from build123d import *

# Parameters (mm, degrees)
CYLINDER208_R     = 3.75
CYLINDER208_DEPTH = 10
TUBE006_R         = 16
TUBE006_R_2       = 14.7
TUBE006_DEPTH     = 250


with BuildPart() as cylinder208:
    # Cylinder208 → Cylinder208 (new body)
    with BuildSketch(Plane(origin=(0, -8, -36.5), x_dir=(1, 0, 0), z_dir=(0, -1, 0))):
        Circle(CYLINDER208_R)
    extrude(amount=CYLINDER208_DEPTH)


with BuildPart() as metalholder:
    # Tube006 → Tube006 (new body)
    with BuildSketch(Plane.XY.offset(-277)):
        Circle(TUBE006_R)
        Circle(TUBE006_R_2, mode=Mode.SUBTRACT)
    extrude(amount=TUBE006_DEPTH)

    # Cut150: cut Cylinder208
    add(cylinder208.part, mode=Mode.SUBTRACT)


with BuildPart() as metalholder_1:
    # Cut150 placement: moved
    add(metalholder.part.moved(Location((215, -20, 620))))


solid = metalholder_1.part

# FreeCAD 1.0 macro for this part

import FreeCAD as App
import Part
import Sketcher
Q = App.Units.Quantity

doc = App.newDocument("Part")
body = doc.addObject("PartDesign::Body", "Body")

# Sketch on XZ plane
sketch1 = doc.addObject("Sketcher::SketchObject", "Sketch")
body.addObject(sketch1)
sketch1.AttachmentSupport = (doc.XZ_Plane, [""])
sketch1.MapMode = "FlatFace"
sketch1.AttachmentOffset = App.Placement(App.Vector(0, 0, 8), App.Rotation())
sketch1.addGeometry(Part.Circle(App.Vector(0, -36.5, 0), App.Vector(0, 0, 1), 3.8), False)
sketch1.addConstraint([
    Sketcher.Constraint("PointOnObject", 0, 3, -2),
    Sketcher.Constraint("Diameter", 0, Q("7.5 mm")),
    Sketcher.Constraint("DistanceY", 0, 3, -1, 1, Q("36.5 mm")),
])
pad1 = doc.addObject("PartDesign::Pad", "Pad")
body.addObject(pad1)
pad1.Profile = sketch1
pad1.Length = 10
body2 = doc.addObject("PartDesign::Body", "Body001")

# Sketch on XY plane
sketch2 = doc.addObject("Sketcher::SketchObject", "Sketch001")
body2.addObject(sketch2)
sketch2.AttachmentSupport = (doc.getObject("XY_Plane001"), [""])
sketch2.MapMode = "FlatFace"
sketch2.AttachmentOffset = App.Placement(App.Vector(0, 0, -277), App.Rotation())
sketch2.addGeometry([
    Part.Circle(App.Vector(0, 0, 0), App.Vector(0, 0, 1), 16),
    Part.Circle(App.Vector(0, 0, 0), App.Vector(0, 0, 1), 15),
], False)
sketch2.addConstraint([
    Sketcher.Constraint("Coincident", 0, 3, -1, 1),
    Sketcher.Constraint("Coincident", 1, 3, -1, 1),
    Sketcher.Constraint("Diameter", 0, Q("32 mm")),
    Sketcher.Constraint("Diameter", 1, Q("29.4 mm")),
])
pad2 = doc.addObject("PartDesign::Pad", "Pad001")
body2.addObject(pad2)
pad2.Profile = sketch2
pad2.Length = 250
doc.recompute()

boolean = doc.addObject("PartDesign::Boolean", "Boolean")
body2.addObject(boolean)
boolean.Type = "Cut"
boolean.addObjects([body])
body3 = doc.addObject("PartDesign::Body", "Body002")
doc.recompute()

body2.Placement = App.Placement(App.Vector(215, -20, 620), App.Rotation(App.Vector(0, 0, 1), 0))
boolean2 = doc.addObject("PartDesign::Boolean", "Boolean001")
body3.addObject(boolean2)
boolean2.Type = "Fuse"
boolean2.addObjects([body2])

doc.recompute()
